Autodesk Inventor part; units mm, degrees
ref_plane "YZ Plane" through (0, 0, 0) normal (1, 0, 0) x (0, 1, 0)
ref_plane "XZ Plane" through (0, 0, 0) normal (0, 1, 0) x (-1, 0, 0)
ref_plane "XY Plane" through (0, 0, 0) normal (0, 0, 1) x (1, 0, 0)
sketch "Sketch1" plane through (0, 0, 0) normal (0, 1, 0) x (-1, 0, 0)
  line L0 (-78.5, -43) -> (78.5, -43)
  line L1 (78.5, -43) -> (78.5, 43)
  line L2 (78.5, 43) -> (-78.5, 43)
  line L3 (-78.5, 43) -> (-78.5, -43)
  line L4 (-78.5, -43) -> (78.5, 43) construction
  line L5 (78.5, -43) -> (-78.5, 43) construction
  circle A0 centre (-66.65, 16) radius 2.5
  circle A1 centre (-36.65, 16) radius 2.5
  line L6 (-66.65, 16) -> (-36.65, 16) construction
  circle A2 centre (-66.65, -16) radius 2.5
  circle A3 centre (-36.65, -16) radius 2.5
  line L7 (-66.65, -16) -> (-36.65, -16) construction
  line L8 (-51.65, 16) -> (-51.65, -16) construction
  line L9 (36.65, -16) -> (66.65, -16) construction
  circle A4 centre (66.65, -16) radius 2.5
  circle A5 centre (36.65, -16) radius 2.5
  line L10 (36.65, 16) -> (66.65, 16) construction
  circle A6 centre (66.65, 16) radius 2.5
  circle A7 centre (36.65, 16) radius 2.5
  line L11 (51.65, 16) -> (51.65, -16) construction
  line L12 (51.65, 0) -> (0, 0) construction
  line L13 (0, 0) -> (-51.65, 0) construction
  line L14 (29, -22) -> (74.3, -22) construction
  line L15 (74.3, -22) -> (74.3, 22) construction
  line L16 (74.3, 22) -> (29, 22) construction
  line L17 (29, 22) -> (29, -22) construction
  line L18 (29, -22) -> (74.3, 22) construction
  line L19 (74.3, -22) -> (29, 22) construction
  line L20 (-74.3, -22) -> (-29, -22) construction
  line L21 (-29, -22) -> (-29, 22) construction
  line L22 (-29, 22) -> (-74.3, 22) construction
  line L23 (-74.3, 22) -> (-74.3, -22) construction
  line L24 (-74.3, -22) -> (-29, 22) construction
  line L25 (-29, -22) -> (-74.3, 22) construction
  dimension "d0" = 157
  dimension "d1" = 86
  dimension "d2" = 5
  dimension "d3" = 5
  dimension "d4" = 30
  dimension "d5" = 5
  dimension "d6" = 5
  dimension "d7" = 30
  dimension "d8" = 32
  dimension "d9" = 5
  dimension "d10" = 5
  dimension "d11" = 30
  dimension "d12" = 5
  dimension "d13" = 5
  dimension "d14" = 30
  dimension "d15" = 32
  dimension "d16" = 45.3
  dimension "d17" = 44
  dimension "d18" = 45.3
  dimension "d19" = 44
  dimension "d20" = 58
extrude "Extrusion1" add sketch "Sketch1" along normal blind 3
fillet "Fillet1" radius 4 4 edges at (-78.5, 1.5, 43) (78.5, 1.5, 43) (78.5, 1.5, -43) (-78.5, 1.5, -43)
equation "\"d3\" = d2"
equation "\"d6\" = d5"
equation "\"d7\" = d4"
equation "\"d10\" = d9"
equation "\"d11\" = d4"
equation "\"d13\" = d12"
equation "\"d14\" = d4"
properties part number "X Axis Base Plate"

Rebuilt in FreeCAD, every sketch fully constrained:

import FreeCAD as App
import Part
import Sketcher


def edges_at(feature, points):
    """Names of the edges that pass closest to the given points."""
    edges = feature.Shape.Edges
    near = lambda p: min(range(len(edges)), key=lambda i: edges[i].distToShape(Part.Vertex(*p))[0])
    return sorted({f"Edge{near(p) + 1}" for p in points})

doc = App.newDocument("Part")
body = doc.addObject("PartDesign::Body", "Body")

# Sketch on XZ plane
sketch1 = body.newObject("Sketcher::SketchObject", "Sketch")
sketch1.AttachmentSupport = (doc.getObject("XZ_Plane"), [""])
sketch1.MapMode = "FlatFace"
sketch1.addGeometry([
    Part.LineSegment(App.Vector(78.5, 43, 0), App.Vector(78.5, -43, 0)),  # 0
    Part.LineSegment(App.Vector(78.5, -43, 0), App.Vector(-78.5, -43, 0)),  # 1
    Part.LineSegment(App.Vector(-78.5, -43, 0), App.Vector(-78.5, 43, 0)),  # 2
    Part.LineSegment(App.Vector(-78.5, 43, 0), App.Vector(78.5, 43, 0)),  # 3
    Part.Circle(App.Vector(66.65, -16, 0), App.Vector(0, 0, 1), 2.5),  # 4
    Part.Circle(App.Vector(36.65, -16, 0), App.Vector(0, 0, 1), 2.5),  # 5
    Part.Circle(App.Vector(-36.65, -16, 0), App.Vector(0, 0, 1), 2.5),  # 6
    Part.Circle(App.Vector(-66.65, -16, 0), App.Vector(0, 0, 1), 2.5),  # 7
    Part.Circle(App.Vector(66.65, 16, 0), App.Vector(0, 0, 1), 2.5),  # 8
    Part.Circle(App.Vector(36.65, 16, 0), App.Vector(0, 0, 1), 2.5),  # 9
    Part.Circle(App.Vector(-36.65, 16, 0), App.Vector(0, 0, 1), 2.5),  # 10
    Part.Circle(App.Vector(-66.65, 16, 0), App.Vector(0, 0, 1), 2.5),  # 11
], False)
sketch1.addConstraint([
    Sketcher.Constraint("Coincident", 0, 2, 1, 1),
    Sketcher.Constraint("Coincident", 1, 2, 2, 1),
    Sketcher.Constraint("Coincident", 2, 2, 3, 1),
    Sketcher.Constraint("Coincident", 3, 2, 0, 1),
    Sketcher.Constraint("Vertical", 0),
    Sketcher.Constraint("Horizontal", 1),
    Sketcher.Constraint("Vertical", 2),
    Sketcher.Constraint("Horizontal", 3),
    Sketcher.Constraint("Equal", 4, 5),
    Sketcher.Constraint("Equal", 5, 6),
    Sketcher.Constraint("Equal", 6, 7),
    Sketcher.Constraint("Equal", 7, 8),
    Sketcher.Constraint("Equal", 8, 9),
    Sketcher.Constraint("Equal", 9, 10),
    Sketcher.Constraint("Equal", 10, 11),
    Sketcher.Constraint("Symmetric", 7, 3, 8, 3, -1, 1),
    Sketcher.Constraint("Symmetric", 6, 3, 9, 3, -1, 1),
    Sketcher.Constraint("Symmetric", 5, 3, 10, 3, -1, 1),
    Sketcher.Constraint("Symmetric", 4, 3, 11, 3, -1, 1),
    Sketcher.Constraint("Symmetric", 0, 2, 2, 2, -1, 1),
    Sketcher.Constraint("Symmetric", 5, 3, 6, 3, -2),
    Sketcher.Constraint("Symmetric", 4, 3, 7, 3, -2),
    Sketcher.Constraint("Horizontal", 4, 3, 5, 3),
    Sketcher.Constraint("Diameter", 4, 5.0),
    Sketcher.Constraint("DistanceX", 1, 2, 1, 1, 157.0),
    Sketcher.Constraint("DistanceY", 0, 2, 0, 1, 86.0),
    Sketcher.Constraint("DistanceX", 5, 3, 4, 3, 30.0),
    Sketcher.Constraint("DistanceY", 4, 3, 8, 3, 32.0),
    Sketcher.Constraint("DistanceX", 6, 3, 5, 3, 73.3),
])
pad1 = body.newObject("PartDesign::Pad", "Pad")
pad1.Profile = sketch1
pad1.Length = 3
pad1.Reversed = True
doc.recompute()

fillet = body.newObject("PartDesign::Fillet", "Fillet")
fillet.Base = (pad1, edges_at(pad1, [
    (-78.5, 1.5, 43),
    (78.5, 1.5, 43),
    (78.5, 1.5, -43),
    (-78.5, 1.5, -43),
]))
fillet.Radius = 4

doc.recompute()
